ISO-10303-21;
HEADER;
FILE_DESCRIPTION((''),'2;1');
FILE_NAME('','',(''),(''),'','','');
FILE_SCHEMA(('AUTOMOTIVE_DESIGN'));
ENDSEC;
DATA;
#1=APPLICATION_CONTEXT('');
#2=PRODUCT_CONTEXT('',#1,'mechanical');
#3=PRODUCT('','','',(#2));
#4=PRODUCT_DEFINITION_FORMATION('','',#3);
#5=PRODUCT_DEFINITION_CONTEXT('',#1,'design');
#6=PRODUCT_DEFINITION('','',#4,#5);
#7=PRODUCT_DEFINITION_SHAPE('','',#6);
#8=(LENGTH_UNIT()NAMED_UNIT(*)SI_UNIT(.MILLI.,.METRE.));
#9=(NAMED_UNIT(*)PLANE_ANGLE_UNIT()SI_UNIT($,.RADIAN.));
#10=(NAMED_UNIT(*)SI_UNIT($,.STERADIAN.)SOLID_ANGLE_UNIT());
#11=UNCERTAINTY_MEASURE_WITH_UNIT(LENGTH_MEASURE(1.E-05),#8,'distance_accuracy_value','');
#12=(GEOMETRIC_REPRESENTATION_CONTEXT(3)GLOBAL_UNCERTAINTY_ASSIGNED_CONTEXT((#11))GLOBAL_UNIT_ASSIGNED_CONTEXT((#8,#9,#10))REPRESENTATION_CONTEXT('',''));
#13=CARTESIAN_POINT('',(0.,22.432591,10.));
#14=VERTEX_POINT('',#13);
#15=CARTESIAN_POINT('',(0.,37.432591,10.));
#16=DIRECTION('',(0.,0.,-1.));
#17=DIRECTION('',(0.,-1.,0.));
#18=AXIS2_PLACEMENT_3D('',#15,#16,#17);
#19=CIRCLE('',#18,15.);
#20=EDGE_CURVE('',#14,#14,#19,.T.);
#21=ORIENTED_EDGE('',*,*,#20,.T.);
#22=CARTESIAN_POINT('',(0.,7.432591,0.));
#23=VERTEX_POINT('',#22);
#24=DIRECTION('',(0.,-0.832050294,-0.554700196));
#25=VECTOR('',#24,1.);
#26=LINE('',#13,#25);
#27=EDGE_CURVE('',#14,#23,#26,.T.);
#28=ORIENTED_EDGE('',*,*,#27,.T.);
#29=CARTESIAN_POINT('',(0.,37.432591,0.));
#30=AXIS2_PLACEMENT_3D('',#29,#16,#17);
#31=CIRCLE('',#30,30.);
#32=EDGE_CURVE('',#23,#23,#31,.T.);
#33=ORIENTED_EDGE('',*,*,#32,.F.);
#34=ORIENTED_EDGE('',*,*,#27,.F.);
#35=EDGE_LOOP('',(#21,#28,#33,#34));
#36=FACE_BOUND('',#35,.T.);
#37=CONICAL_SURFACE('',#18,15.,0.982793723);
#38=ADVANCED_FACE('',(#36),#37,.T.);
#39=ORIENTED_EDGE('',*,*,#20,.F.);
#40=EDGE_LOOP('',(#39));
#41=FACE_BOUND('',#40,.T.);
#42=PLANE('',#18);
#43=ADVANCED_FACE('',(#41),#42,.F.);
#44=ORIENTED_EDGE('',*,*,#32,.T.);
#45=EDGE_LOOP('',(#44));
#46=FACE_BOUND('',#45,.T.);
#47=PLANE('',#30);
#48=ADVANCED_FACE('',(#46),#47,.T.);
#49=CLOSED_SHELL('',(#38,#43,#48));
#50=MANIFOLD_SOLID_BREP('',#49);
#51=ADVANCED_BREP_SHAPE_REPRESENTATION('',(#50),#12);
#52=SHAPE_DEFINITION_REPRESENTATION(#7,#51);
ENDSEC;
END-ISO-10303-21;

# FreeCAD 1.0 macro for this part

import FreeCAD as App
import Part
import Sketcher

doc = App.newDocument("Part")
body = doc.addObject("PartDesign::Body", "Body")

# Sketch on YZ plane
sketch1 = doc.addObject("Sketcher::SketchObject", "Sketch")
body.addObject(sketch1)
sketch1.AttachmentSupport = (doc.YZ_Plane, [""])
sketch1.MapMode = "FlatFace"
sketch1.addGeometry(Part.LineSegment(App.Vector(37, 0, 0), App.Vector(37, 10, 0)), False)
sketch1.addGeometry(Part.LineSegment(App.Vector(37, 10, 0), App.Vector(22, 10, 0)), False)
sketch1.addGeometry(Part.LineSegment(App.Vector(22, 10, 0), App.Vector(7, 0, 0)), False)
sketch1.addGeometry(Part.LineSegment(App.Vector(7, 0, 0), App.Vector(37, 0, 0)), False)
sketch1.addGeometry(Part.LineSegment(App.Vector(37, 10, 0), App.Vector(37, 0, 0)), True)  # axis
sketch1.addConstraint(Sketcher.Constraint("Coincident", 0, 2, 1, 1))
sketch1.addConstraint(Sketcher.Constraint("Coincident", 1, 2, 2, 1))
sketch1.addConstraint(Sketcher.Constraint("Coincident", 2, 2, 3, 1))
sketch1.addConstraint(Sketcher.Constraint("Coincident", 3, 2, 0, 1))
sketch1.addConstraint(Sketcher.Constraint("Vertical", 0))
sketch1.addConstraint(Sketcher.Constraint("Horizontal", 1))
sketch1.addConstraint(Sketcher.Constraint("Horizontal", 3))
sketch1.addConstraint(Sketcher.Constraint("Vertical", 4))
sketch1.addConstraint(Sketcher.Constraint("Coincident", 4, 1, 0, 2))
sketch1.addConstraint(Sketcher.Constraint("PointOnObject", 2, 2, -1))
sketch1.addConstraint(Sketcher.Constraint("PointOnObject", 4, 2, -1))
sketch1.addConstraint(Sketcher.Constraint("DistanceX", 1, 2, 1, 1, 15.0))
sketch1.addConstraint(Sketcher.Constraint("DistanceX", 3, 1, 3, 2, 30.0))
sketch1.addConstraint(Sketcher.Constraint("DistanceY", 0, 1, 0, 2, 10.0))
sketch1.addConstraint(Sketcher.Constraint("DistanceX", -1, 1, 0, 2, 37.432591))
revolution = doc.addObject("PartDesign::Revolution", "Revolution")
body.addObject(revolution)
revolution.Profile = sketch1
revolution.ReferenceAxis = (sketch1, ["Axis0"])
revolution.Angle = 360

doc.recompute()
